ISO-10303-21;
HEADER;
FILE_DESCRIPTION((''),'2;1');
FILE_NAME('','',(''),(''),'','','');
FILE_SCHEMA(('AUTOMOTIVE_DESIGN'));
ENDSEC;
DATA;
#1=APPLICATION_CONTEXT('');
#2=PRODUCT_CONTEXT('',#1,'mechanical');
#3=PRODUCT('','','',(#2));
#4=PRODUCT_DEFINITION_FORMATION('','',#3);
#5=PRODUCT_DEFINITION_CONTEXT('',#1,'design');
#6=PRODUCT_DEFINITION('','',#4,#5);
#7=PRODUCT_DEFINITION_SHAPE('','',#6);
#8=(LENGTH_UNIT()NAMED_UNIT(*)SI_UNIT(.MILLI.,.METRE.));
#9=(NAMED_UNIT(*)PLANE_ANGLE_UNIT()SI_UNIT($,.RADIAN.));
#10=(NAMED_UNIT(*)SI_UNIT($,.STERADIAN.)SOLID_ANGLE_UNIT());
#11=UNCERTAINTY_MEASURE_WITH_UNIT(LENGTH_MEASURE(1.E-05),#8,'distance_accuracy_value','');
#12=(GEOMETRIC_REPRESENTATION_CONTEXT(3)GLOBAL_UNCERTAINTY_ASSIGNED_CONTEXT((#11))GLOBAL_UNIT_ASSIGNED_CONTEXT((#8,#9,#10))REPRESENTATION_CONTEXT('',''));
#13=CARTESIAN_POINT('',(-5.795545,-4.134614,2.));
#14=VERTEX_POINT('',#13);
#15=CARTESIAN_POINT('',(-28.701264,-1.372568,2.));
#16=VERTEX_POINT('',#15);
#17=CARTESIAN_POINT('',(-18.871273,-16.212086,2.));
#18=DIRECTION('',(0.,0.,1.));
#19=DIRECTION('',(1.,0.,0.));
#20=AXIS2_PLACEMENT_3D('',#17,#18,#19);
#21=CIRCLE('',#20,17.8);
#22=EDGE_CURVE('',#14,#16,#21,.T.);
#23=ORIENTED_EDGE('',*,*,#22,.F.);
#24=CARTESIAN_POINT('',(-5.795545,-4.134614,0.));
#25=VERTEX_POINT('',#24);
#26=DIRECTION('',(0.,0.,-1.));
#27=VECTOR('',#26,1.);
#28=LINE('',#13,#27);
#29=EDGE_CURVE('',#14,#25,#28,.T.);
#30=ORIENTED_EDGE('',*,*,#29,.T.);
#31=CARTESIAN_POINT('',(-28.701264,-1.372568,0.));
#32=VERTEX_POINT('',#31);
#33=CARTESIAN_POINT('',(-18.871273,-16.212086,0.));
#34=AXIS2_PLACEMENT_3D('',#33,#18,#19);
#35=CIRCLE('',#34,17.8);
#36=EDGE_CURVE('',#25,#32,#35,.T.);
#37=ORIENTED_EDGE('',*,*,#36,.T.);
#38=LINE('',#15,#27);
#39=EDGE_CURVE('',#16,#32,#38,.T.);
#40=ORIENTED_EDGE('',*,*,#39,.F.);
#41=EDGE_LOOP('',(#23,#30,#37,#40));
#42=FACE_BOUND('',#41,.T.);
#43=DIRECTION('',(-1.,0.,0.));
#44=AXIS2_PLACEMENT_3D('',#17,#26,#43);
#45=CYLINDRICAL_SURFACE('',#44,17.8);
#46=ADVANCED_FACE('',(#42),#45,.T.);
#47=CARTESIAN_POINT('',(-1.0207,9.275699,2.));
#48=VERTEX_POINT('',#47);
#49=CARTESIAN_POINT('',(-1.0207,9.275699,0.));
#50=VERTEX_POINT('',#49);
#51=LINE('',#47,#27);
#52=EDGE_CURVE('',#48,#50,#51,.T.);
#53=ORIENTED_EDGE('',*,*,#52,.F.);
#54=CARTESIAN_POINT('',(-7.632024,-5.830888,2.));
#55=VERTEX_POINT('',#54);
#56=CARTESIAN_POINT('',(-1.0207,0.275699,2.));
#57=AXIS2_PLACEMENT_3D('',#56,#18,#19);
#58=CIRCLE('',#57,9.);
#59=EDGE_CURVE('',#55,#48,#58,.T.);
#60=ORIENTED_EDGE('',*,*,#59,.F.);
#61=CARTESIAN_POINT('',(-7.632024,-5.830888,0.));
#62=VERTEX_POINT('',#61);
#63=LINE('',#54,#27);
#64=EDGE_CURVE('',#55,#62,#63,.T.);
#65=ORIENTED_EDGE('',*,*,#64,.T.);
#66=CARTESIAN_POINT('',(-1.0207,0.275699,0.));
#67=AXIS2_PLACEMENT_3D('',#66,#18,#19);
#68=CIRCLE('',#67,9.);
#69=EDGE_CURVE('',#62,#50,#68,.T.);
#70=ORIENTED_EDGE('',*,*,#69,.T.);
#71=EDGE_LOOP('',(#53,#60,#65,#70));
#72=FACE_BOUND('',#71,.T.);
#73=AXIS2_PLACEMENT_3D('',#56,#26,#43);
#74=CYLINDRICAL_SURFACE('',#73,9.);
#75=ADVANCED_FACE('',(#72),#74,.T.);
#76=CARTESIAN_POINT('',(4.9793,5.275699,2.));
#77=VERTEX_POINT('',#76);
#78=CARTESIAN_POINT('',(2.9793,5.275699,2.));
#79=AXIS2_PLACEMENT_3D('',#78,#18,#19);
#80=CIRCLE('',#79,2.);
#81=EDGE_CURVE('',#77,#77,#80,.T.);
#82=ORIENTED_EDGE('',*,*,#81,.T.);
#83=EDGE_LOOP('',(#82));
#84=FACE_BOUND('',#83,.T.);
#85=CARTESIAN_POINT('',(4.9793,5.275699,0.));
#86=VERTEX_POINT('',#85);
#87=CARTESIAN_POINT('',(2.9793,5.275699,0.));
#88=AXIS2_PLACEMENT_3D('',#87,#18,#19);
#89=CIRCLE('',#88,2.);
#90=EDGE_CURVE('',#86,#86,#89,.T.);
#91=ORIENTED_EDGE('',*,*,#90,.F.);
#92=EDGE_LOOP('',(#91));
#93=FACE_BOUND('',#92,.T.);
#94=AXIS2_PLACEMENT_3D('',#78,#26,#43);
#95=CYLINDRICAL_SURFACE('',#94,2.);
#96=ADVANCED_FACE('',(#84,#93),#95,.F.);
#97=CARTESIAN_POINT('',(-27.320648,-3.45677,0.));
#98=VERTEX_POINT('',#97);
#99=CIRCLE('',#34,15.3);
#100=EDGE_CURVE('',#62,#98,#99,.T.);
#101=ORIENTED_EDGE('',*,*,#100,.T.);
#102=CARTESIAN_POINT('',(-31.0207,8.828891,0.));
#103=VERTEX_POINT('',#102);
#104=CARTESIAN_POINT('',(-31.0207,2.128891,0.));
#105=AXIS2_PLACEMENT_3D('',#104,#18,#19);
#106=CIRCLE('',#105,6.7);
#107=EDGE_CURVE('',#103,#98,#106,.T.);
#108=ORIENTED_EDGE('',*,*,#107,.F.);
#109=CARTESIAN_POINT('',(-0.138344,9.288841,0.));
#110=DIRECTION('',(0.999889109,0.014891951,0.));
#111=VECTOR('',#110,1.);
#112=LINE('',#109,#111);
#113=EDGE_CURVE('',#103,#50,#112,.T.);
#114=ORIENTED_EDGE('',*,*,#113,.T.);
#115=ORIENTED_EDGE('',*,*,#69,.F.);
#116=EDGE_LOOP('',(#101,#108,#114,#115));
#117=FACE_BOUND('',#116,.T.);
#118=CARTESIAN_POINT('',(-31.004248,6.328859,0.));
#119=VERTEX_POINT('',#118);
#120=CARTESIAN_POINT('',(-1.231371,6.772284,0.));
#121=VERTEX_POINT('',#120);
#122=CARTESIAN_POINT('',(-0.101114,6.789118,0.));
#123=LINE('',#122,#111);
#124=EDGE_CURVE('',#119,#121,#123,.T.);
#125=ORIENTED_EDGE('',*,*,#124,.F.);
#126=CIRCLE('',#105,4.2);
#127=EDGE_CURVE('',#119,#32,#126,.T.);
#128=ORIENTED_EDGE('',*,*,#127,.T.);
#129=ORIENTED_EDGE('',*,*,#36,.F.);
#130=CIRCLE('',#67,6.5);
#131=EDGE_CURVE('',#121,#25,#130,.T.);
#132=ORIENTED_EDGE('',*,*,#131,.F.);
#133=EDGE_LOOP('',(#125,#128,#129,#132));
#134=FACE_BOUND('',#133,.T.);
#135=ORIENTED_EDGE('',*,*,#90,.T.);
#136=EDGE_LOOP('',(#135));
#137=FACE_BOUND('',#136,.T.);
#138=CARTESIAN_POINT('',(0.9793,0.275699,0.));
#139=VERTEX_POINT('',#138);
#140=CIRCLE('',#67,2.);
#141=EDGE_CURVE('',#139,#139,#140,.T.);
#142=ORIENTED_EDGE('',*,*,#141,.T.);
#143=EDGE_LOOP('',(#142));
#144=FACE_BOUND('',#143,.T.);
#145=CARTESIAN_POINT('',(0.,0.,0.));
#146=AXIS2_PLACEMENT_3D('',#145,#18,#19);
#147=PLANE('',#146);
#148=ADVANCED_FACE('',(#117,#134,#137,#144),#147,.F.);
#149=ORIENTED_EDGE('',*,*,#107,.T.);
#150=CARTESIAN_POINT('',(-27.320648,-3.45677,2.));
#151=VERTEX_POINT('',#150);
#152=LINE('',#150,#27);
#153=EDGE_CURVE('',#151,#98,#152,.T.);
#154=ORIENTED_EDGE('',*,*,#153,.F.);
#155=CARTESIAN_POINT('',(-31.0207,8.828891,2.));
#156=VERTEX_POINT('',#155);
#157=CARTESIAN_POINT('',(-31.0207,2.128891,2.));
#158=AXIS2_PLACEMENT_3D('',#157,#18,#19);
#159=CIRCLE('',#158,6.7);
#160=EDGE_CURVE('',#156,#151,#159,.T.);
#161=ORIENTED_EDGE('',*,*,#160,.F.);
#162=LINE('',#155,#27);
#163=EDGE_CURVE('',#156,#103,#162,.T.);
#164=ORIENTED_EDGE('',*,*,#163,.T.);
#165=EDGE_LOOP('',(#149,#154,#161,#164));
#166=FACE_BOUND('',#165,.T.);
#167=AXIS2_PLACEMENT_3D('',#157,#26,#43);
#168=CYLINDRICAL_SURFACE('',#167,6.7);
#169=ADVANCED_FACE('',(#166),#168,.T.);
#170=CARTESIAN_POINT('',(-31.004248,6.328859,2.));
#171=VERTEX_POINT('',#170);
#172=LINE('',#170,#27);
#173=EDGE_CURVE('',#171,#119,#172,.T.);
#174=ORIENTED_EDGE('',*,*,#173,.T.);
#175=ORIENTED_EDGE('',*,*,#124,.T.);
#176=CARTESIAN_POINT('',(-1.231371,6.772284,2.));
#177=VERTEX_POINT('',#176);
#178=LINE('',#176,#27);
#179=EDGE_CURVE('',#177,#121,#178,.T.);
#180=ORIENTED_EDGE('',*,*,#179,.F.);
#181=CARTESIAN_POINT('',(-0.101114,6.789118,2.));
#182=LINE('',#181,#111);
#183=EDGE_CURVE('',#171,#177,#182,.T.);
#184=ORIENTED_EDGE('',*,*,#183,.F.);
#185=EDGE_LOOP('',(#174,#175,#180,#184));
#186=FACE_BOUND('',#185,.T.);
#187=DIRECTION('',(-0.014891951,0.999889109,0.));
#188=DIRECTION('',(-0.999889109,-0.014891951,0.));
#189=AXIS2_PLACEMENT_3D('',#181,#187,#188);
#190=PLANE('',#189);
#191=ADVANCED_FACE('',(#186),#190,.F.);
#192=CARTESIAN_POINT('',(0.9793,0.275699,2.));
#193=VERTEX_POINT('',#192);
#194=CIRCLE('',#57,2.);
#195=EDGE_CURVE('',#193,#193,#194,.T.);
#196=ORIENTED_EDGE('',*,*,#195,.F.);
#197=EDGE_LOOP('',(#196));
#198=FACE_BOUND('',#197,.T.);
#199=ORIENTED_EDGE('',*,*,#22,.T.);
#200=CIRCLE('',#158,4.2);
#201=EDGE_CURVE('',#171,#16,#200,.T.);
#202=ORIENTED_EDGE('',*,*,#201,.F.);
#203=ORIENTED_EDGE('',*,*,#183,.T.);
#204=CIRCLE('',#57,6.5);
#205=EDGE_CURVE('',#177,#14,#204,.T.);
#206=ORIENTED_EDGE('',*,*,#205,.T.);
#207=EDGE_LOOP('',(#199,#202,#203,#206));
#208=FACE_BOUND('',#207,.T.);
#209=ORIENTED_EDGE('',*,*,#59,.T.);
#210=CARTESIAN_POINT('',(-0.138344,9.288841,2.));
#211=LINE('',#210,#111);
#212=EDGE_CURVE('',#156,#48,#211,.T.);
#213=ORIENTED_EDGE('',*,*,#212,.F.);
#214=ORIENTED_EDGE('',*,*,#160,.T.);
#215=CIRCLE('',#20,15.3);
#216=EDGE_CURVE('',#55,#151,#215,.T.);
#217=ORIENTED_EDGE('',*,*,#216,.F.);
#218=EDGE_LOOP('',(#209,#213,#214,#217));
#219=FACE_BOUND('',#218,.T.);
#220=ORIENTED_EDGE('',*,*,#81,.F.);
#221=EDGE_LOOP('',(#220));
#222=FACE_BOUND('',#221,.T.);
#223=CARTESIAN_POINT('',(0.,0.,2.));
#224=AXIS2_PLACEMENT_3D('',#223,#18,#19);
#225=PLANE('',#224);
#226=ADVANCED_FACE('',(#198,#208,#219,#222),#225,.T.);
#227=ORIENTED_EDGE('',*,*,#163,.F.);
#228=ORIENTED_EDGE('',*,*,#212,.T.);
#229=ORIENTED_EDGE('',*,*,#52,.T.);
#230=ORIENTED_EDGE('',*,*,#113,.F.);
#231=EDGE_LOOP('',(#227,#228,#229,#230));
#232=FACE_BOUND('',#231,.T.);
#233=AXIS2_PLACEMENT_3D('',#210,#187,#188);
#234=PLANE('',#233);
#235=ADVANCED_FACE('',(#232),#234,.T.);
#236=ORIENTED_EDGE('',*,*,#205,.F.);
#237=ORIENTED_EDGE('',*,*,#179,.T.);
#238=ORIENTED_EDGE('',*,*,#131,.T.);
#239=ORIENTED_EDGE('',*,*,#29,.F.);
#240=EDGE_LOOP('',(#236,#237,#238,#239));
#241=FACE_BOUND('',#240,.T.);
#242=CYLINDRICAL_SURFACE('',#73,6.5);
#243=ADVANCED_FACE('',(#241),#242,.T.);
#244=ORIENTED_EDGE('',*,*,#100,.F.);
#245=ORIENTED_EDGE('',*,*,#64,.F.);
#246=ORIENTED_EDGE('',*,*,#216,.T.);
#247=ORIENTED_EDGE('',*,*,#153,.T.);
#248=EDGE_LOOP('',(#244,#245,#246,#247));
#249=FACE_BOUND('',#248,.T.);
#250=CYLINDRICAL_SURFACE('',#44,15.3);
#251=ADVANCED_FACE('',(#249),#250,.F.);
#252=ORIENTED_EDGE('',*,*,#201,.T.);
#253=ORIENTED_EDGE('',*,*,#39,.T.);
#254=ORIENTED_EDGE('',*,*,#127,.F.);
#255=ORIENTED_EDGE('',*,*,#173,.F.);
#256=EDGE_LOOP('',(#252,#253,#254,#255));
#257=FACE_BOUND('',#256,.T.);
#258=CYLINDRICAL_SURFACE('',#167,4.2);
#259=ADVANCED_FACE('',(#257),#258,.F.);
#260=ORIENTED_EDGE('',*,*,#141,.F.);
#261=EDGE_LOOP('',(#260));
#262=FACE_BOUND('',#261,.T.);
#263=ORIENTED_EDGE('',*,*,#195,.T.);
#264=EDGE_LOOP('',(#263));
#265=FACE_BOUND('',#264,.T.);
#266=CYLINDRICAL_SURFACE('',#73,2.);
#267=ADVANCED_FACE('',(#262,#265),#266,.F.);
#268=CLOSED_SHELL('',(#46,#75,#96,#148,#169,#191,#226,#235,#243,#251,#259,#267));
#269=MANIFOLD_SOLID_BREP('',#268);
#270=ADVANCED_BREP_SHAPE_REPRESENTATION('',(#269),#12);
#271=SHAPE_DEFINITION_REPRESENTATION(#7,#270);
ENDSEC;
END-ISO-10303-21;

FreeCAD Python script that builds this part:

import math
import FreeCAD as App
import Part
import Sketcher
from FreeCAD import Vector

doc = App.newDocument("Part")
body = doc.addObject("PartDesign::Body", "Body")

# Sketch on XY plane
sketch1 = body.newObject("Sketcher::SketchObject", "Sketch")
sketch1.AttachmentSupport = (doc.getObject("XY_Plane"), [""])
sketch1.MapMode = "FlatFace"
sketch1.addGeometry([
    Part.LineSegment(Vector(-1.29, 9.27, 0), Vector(-31.02, 8.83, 0)),  # 0
    Part.ArcOfCircle(Part.Circle(Vector(-31.02, 2.13, 0), Vector(0, 0, 1), 6.7), math.radians(90), math.radians(304)),  # 1
    Part.ArcOfCircle(Part.Circle(Vector(-18.87, -16.21, 0), Vector(0, 0, 1), 15.3), math.radians(43), math.radians(124)),  # 2
    Part.ArcOfCircle(Part.Circle(Vector(-1.02, 0.28, 0), Vector(0, 0, 1), 9), math.radians(-137), math.radians(90)),  # 3
    Part.LineSegment(Vector(-1.02, 9.28, 0), Vector(-1.29, 9.27, 0)),  # 4
    Part.ArcOfCircle(Part.Circle(Vector(-18.87, -16.21, 0), Vector(0, 0, 1), 17.8), math.radians(43), math.radians(124)),  # 5
    Part.ArcOfCircle(Part.Circle(Vector(-31.02, 2.13, 0), Vector(0, 0, 1), 4.2), math.radians(90), math.radians(304)),  # 6
    Part.LineSegment(Vector(-31, 6.33, 0), Vector(-1.23, 6.77, 0)),  # 7
    Part.ArcOfCircle(Part.Circle(Vector(-1.02, 0.28, 0), Vector(0, 0, 1), 6.5), math.radians(92), math.radians(223)),  # 8
    Part.Circle(Vector(-1.02, 0.28, 0), Vector(0, 0, 1), 2),  # 9
    Part.ArcOfCircle(Part.Circle(Vector(2.98, 5.28, 0), Vector(0, 0, 1), 2), math.radians(-144), math.radians(-114)),  # 10
    Part.ArcOfCircle(Part.Circle(Vector(2.98, 5.28, 0), Vector(0, 0, 1), 2), math.radians(0), math.radians(216)),  # 11
    Part.ArcOfCircle(Part.Circle(Vector(2.98, 5.28, 0), Vector(0, 0, 1), 2), math.radians(-114), math.radians(0)),  # 12
], False)
sketch1.addConstraint([
    Sketcher.Constraint("Coincident", 0, 2, 1, 1),
    Sketcher.Constraint("Tangent", 1, 2, 2, 2),
    Sketcher.Constraint("Tangent", 2, 1, 3, 1),
    Sketcher.Constraint("Coincident", 3, 2, 4, 1),
    Sketcher.Constraint("Coincident", 4, 2, 0, 1),
    Sketcher.Constraint("Tangent", 5, 2, 6, 2),
    Sketcher.Constraint("Coincident", 6, 1, 7, 1),
    Sketcher.Constraint("Coincident", 7, 2, 8, 1),
    Sketcher.Constraint("Tangent", 8, 2, 5, 1),
    Sketcher.Constraint("Tangent", 10, 1, 11, 2),
    Sketcher.Constraint("Tangent", 11, 1, 12, 2),
    Sketcher.Constraint("Tangent", 12, 1, 10, 2),
    Sketcher.Constraint("Coincident", 5, 3, 2, 3),
    Sketcher.Constraint("Coincident", 6, 3, 1, 3),
    Sketcher.Constraint("Coincident", 8, 3, 3, 3),
    Sketcher.Constraint("Coincident", 9, 3, 3, 3),
    Sketcher.Constraint("Equal", 9, 10),
    Sketcher.Constraint("Parallel", 0, 4),
    Sketcher.Constraint("Parallel", 0, 7),
    Sketcher.Constraint("Horizontal", 12, 3, 11, 1),
    Sketcher.Constraint("Vertical", 6, 3, 0, 2),
    Sketcher.Constraint("Vertical", 9, 3, 3, 2),
    Sketcher.Constraint("Diameter", 9, 4.0),
    Sketcher.Constraint("Radius", 3, 9.0),
    Sketcher.Constraint("Radius", 1, 6.7),
    Sketcher.Constraint("Radius", 2, 15.3),
    Sketcher.Constraint("Radius", 5, 17.8),
    Sketcher.Constraint("DistanceX", 1, 3, 3, 3, 30.0),
    Sketcher.Constraint("DistanceX", 8, 3, 10, 3, 4.0),
    Sketcher.Constraint("DistanceY", 8, 3, 10, 3, 5.0),
    Sketcher.Constraint("DistanceX", 1, 3, -1, 1, 31.0207),
    Sketcher.Constraint("DistanceY", -1, 1, 3, 3, 0.275699),
    Sketcher.Constraint("DistanceX", 6, 1, 1, 2, 3.6836),
    Sketcher.Constraint("Distance", 0, 29.735272),
    Sketcher.Constraint("Distance", 7, 29.776179),
    Sketcher.Constraint("DistanceX", -1, 1, 10, 1, 1.37011),
    Sketcher.Constraint("DistanceX", -1, 1, 12, 1, 2.173855),
])
pad1 = body.newObject("PartDesign::Pad", "Pad")
pad1.Profile = sketch1
pad1.Length = 2

doc.recompute()
